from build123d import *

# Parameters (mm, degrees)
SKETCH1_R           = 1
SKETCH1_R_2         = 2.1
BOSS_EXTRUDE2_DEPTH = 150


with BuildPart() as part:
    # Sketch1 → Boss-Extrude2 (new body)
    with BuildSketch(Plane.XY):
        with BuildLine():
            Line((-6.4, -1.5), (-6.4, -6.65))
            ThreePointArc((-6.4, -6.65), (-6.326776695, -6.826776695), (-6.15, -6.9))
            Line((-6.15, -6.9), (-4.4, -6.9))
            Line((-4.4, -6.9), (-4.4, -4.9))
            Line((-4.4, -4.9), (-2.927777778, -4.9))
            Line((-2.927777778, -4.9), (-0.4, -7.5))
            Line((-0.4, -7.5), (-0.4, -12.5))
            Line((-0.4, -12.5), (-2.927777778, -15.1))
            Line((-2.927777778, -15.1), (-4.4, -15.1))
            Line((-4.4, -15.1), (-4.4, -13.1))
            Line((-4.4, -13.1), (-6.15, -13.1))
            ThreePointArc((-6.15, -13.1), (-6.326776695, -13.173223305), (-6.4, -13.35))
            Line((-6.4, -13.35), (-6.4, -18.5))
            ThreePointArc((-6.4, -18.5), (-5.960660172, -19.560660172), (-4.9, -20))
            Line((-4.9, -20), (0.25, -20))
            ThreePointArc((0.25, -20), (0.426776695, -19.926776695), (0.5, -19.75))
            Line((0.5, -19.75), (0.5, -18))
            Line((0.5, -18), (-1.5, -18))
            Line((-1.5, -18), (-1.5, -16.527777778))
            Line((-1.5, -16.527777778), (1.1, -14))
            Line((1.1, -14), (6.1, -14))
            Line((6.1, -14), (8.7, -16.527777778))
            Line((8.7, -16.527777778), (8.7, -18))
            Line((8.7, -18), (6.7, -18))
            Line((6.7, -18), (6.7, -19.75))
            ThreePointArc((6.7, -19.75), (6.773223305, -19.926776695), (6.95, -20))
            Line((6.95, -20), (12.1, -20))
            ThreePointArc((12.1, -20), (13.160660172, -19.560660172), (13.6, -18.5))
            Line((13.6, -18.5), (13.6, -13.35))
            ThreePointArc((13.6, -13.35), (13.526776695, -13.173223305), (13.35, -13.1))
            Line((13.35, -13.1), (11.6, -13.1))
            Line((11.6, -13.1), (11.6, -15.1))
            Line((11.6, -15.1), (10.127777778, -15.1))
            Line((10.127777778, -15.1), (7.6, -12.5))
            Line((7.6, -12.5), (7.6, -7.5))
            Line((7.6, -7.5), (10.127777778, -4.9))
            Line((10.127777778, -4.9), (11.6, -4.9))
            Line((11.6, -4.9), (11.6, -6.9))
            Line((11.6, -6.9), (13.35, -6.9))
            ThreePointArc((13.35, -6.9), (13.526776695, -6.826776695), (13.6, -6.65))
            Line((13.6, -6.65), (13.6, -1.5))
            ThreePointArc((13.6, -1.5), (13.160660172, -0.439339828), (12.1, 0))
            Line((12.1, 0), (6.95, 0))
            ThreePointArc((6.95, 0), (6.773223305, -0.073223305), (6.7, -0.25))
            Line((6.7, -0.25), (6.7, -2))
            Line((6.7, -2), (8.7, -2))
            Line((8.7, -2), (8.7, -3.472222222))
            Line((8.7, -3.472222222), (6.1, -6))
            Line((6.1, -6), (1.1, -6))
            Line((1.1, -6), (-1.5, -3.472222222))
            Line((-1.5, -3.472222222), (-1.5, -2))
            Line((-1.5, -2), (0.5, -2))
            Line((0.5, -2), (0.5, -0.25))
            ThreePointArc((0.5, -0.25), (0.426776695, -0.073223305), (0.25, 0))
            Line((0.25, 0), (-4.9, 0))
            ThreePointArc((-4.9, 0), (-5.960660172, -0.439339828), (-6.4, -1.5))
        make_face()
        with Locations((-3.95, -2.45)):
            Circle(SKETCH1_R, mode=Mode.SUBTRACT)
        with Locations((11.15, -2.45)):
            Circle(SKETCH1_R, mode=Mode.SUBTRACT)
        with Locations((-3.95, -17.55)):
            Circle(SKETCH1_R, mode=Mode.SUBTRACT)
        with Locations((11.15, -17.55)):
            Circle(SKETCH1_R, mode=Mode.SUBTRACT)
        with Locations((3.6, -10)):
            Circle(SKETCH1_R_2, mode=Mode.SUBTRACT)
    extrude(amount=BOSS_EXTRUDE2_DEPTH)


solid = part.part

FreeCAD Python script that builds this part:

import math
import FreeCAD as App
import Part
import Sketcher
from FreeCAD import Vector
Q = App.Units.Quantity

doc = App.newDocument("Part")
body = doc.addObject("PartDesign::Body", "Body")

# Sketch on XY plane
sketch1 = body.newObject("Sketcher::SketchObject", "Sketch")
sketch1.AttachmentSupport = (doc.getObject("XY_Plane"), [""])
sketch1.MapMode = "FlatFace"
sketch1.addGeometry(Part.LineSegment(Vector(-6.4, -1.5, 0), Vector(-6.4, -6.65, 0)), False)
sketch1.addGeometry(Part.ArcOfCircle(Part.Circle(Vector(-6.15, -6.65, 0), Vector(0, 0, 1), 0.25), math.radians(-180), math.radians(-90)), False)
sketch1.addGeometry(Part.LineSegment(Vector(-6.15, -6.9, 0), Vector(-4.4, -6.9, 0)), False)
sketch1.addGeometry(Part.LineSegment(Vector(-4.4, -6.9, 0), Vector(-4.4, -4.9, 0)), False)
sketch1.addGeometry(Part.LineSegment(Vector(-4.4, -4.9, 0), Vector(-2.93, -4.9, 0)), False)
sketch1.addGeometry(Part.LineSegment(Vector(-2.93, -4.9, 0), Vector(-0.4, -7.5, 0)), False)
sketch1.addGeometry(Part.LineSegment(Vector(-0.4, -7.5, 0), Vector(-0.4, -12.5, 0)), False)
sketch1.addGeometry(Part.LineSegment(Vector(-0.4, -12.5, 0), Vector(-2.93, -15.1, 0)), False)
sketch1.addGeometry(Part.LineSegment(Vector(-2.93, -15.1, 0), Vector(-4.4, -15.1, 0)), False)
sketch1.addGeometry(Part.LineSegment(Vector(-4.4, -15.1, 0), Vector(-4.4, -13.1, 0)), False)
sketch1.addGeometry(Part.LineSegment(Vector(-4.4, -13.1, 0), Vector(-6.15, -13.1, 0)), False)
sketch1.addGeometry(Part.ArcOfCircle(Part.Circle(Vector(-6.15, -13.35, 0), Vector(0, 0, 1), 0.25), math.radians(90), math.radians(180)), False)
sketch1.addGeometry(Part.LineSegment(Vector(-6.4, -13.35, 0), Vector(-6.4, -18.5, 0)), False)
sketch1.addGeometry(Part.ArcOfCircle(Part.Circle(Vector(-4.9, -18.5, 0), Vector(0, 0, 1), 1.5), math.radians(180), math.radians(270)), False)
sketch1.addGeometry(Part.LineSegment(Vector(-4.9, -20, 0), Vector(0.25, -20, 0)), False)
sketch1.addGeometry(Part.ArcOfCircle(Part.Circle(Vector(0.25, -19.75, 0), Vector(0, 0, 1), 0.25), math.radians(-90), math.radians(0)), False)
sketch1.addGeometry(Part.LineSegment(Vector(0.5, -19.75, 0), Vector(0.5, -18, 0)), False)
sketch1.addGeometry(Part.LineSegment(Vector(0.5, -18, 0), Vector(-1.5, -18, 0)), False)
sketch1.addGeometry(Part.LineSegment(Vector(-1.5, -18, 0), Vector(-1.5, -16.53, 0)), False)
sketch1.addGeometry(Part.LineSegment(Vector(-1.5, -16.53, 0), Vector(1.1, -14, 0)), False)
sketch1.addGeometry(Part.LineSegment(Vector(1.1, -14, 0), Vector(6.1, -14, 0)), False)
sketch1.addGeometry(Part.LineSegment(Vector(6.1, -14, 0), Vector(8.7, -16.53, 0)), False)
sketch1.addGeometry(Part.LineSegment(Vector(8.7, -16.53, 0), Vector(8.7, -18, 0)), False)
sketch1.addGeometry(Part.LineSegment(Vector(8.7, -18, 0), Vector(6.7, -18, 0)), False)
sketch1.addGeometry(Part.LineSegment(Vector(6.7, -18, 0), Vector(6.7, -19.75, 0)), False)
sketch1.addGeometry(Part.ArcOfCircle(Part.Circle(Vector(6.95, -19.75, 0), Vector(0, 0, 1), 0.25), math.radians(-180), math.radians(-90)), False)
sketch1.addGeometry(Part.LineSegment(Vector(6.95, -20, 0), Vector(12.1, -20, 0)), False)
sketch1.addGeometry(Part.ArcOfCircle(Part.Circle(Vector(12.1, -18.5, 0), Vector(0, 0, 1), 1.5), math.radians(-90), math.radians(0)), False)
sketch1.addGeometry(Part.LineSegment(Vector(13.6, -18.5, 0), Vector(13.6, -13.35, 0)), False)
sketch1.addGeometry(Part.ArcOfCircle(Part.Circle(Vector(13.35, -13.35, 0), Vector(0, 0, 1), 0.25), math.radians(0), math.radians(90)), False)
sketch1.addGeometry(Part.LineSegment(Vector(13.35, -13.1, 0), Vector(11.6, -13.1, 0)), False)
sketch1.addGeometry(Part.LineSegment(Vector(11.6, -13.1, 0), Vector(11.6, -15.1, 0)), False)
sketch1.addGeometry(Part.LineSegment(Vector(11.6, -15.1, 0), Vector(10.13, -15.1, 0)), False)
sketch1.addGeometry(Part.LineSegment(Vector(10.13, -15.1, 0), Vector(7.6, -12.5, 0)), False)
sketch1.addGeometry(Part.LineSegment(Vector(7.6, -12.5, 0), Vector(7.6, -7.5, 0)), False)
sketch1.addGeometry(Part.LineSegment(Vector(7.6, -7.5, 0), Vector(10.13, -4.9, 0)), False)
sketch1.addGeometry(Part.LineSegment(Vector(10.13, -4.9, 0), Vector(11.6, -4.9, 0)), False)
sketch1.addGeometry(Part.LineSegment(Vector(11.6, -4.9, 0), Vector(11.6, -6.9, 0)), False)
sketch1.addGeometry(Part.LineSegment(Vector(11.6, -6.9, 0), Vector(13.35, -6.9, 0)), False)
sketch1.addGeometry(Part.ArcOfCircle(Part.Circle(Vector(13.35, -6.65, 0), Vector(0, 0, 1), 0.25), math.radians(-90), math.radians(0)), False)
sketch1.addGeometry(Part.LineSegment(Vector(13.6, -6.65, 0), Vector(13.6, -1.5, 0)), False)
sketch1.addGeometry(Part.ArcOfCircle(Part.Circle(Vector(12.1, -1.5, 0), Vector(0, 0, 1), 1.5), math.radians(0), math.radians(90)), False)
sketch1.addGeometry(Part.LineSegment(Vector(12.1, 0, 0), Vector(6.95, 0, 0)), False)
sketch1.addGeometry(Part.ArcOfCircle(Part.Circle(Vector(6.95, -0.25, 0), Vector(0, 0, 1), 0.25), math.radians(90), math.radians(180)), False)
sketch1.addGeometry(Part.LineSegment(Vector(6.7, -0.25, 0), Vector(6.7, -2, 0)), False)
sketch1.addGeometry(Part.LineSegment(Vector(6.7, -2, 0), Vector(8.7, -2, 0)), False)
sketch1.addGeometry(Part.LineSegment(Vector(8.7, -2, 0), Vector(8.7, -3.47, 0)), False)
sketch1.addGeometry(Part.LineSegment(Vector(8.7, -3.47, 0), Vector(6.1, -6, 0)), False)
sketch1.addGeometry(Part.LineSegment(Vector(6.1, -6, 0), Vector(1.1, -6, 0)), False)
sketch1.addGeometry(Part.LineSegment(Vector(1.1, -6, 0), Vector(-1.5, -3.47, 0)), False)
sketch1.addGeometry(Part.LineSegment(Vector(-1.5, -3.47, 0), Vector(-1.5, -2, 0)), False)
sketch1.addGeometry(Part.LineSegment(Vector(-1.5, -2, 0), Vector(0.5, -2, 0)), False)
sketch1.addGeometry(Part.LineSegment(Vector(0.5, -2, 0), Vector(0.5, -0.25, 0)), False)
sketch1.addGeometry(Part.ArcOfCircle(Part.Circle(Vector(0.25, -0.25, 0), Vector(0, 0, 1), 0.25), math.radians(0), math.radians(90)), False)
sketch1.addGeometry(Part.LineSegment(Vector(0.25, 0, 0), Vector(-4.9, 0, 0)), False)
sketch1.addGeometry(Part.ArcOfCircle(Part.Circle(Vector(-4.9, -1.5, 0), Vector(0, 0, 1), 1.5), math.radians(90), math.radians(180)), False)
sketch1.addGeometry(Part.Circle(Vector(-3.95, -17.55, 0), Vector(0, 0, 1), 1), False)
sketch1.addGeometry(Part.Circle(Vector(11.15, -17.55, 0), Vector(0, 0, 1), 1), False)
sketch1.addGeometry(Part.Circle(Vector(3.6, -10, 0), Vector(0, 0, 1), 2.1), False)
sketch1.addGeometry(Part.Circle(Vector(-3.95, -2.45, 0), Vector(0, 0, 1), 1), False)
sketch1.addGeometry(Part.Circle(Vector(11.15, -2.45, 0), Vector(0, 0, 1), 1), False)
sketch1.addConstraint(Sketcher.Constraint("Tangent", 0, 2, 1, 1))
sketch1.addConstraint(Sketcher.Constraint("Tangent", 1, 2, 2, 1))
sketch1.addConstraint(Sketcher.Constraint("Coincident", 2, 2, 3, 1))
sketch1.addConstraint(Sketcher.Constraint("Coincident", 3, 2, 4, 1))
sketch1.addConstraint(Sketcher.Constraint("Coincident", 4, 2, 5, 1))
sketch1.addConstraint(Sketcher.Constraint("Coincident", 5, 2, 6, 1))
sketch1.addConstraint(Sketcher.Constraint("Coincident", 6, 2, 7, 1))
sketch1.addConstraint(Sketcher.Constraint("Coincident", 7, 2, 8, 1))
sketch1.addConstraint(Sketcher.Constraint("Coincident", 8, 2, 9, 1))
sketch1.addConstraint(Sketcher.Constraint("Coincident", 9, 2, 10, 1))
sketch1.addConstraint(Sketcher.Constraint("Tangent", 10, 2, 11, 1))
sketch1.addConstraint(Sketcher.Constraint("Tangent", 11, 2, 12, 1))
sketch1.addConstraint(Sketcher.Constraint("Tangent", 12, 2, 13, 1))
sketch1.addConstraint(Sketcher.Constraint("Tangent", 13, 2, 14, 1))
sketch1.addConstraint(Sketcher.Constraint("Tangent", 14, 2, 15, 1))
sketch1.addConstraint(Sketcher.Constraint("Tangent", 15, 2, 16, 1))
sketch1.addConstraint(Sketcher.Constraint("Coincident", 16, 2, 17, 1))
sketch1.addConstraint(Sketcher.Constraint("Coincident", 17, 2, 18, 1))
sketch1.addConstraint(Sketcher.Constraint("Coincident", 18, 2, 19, 1))
sketch1.addConstraint(Sketcher.Constraint("Coincident", 19, 2, 20, 1))
sketch1.addConstraint(Sketcher.Constraint("Coincident", 20, 2, 21, 1))
sketch1.addConstraint(Sketcher.Constraint("Coincident", 21, 2, 22, 1))
sketch1.addConstraint(Sketcher.Constraint("Coincident", 22, 2, 23, 1))
sketch1.addConstraint(Sketcher.Constraint("Coincident", 23, 2, 24, 1))
sketch1.addConstraint(Sketcher.Constraint("Tangent", 24, 2, 25, 1))
sketch1.addConstraint(Sketcher.Constraint("Tangent", 25, 2, 26, 1))
sketch1.addConstraint(Sketcher.Constraint("Tangent", 26, 2, 27, 1))
sketch1.addConstraint(Sketcher.Constraint("Tangent", 27, 2, 28, 1))
sketch1.addConstraint(Sketcher.Constraint("Tangent", 28, 2, 29, 1))
sketch1.addConstraint(Sketcher.Constraint("Tangent", 29, 2, 30, 1))
sketch1.addConstraint(Sketcher.Constraint("Coincident", 30, 2, 31, 1))
sketch1.addConstraint(Sketcher.Constraint("Coincident", 31, 2, 32, 1))
sketch1.addConstraint(Sketcher.Constraint("Coincident", 32, 2, 33, 1))
sketch1.addConstraint(Sketcher.Constraint("Coincident", 33, 2, 34, 1))
sketch1.addConstraint(Sketcher.Constraint("Coincident", 34, 2, 35, 1))
sketch1.addConstraint(Sketcher.Constraint("Coincident", 35, 2, 36, 1))
sketch1.addConstraint(Sketcher.Constraint("Coincident", 36, 2, 37, 1))
sketch1.addConstraint(Sketcher.Constraint("Coincident", 37, 2, 38, 1))
sketch1.addConstraint(Sketcher.Constraint("Tangent", 38, 2, 39, 1))
sketch1.addConstraint(Sketcher.Constraint("Tangent", 39, 2, 40, 1))
sketch1.addConstraint(Sketcher.Constraint("Tangent", 40, 2, 41, 1))
sketch1.addConstraint(Sketcher.Constraint("Tangent", 41, 2, 42, 1))
sketch1.addConstraint(Sketcher.Constraint("Tangent", 42, 2, 43, 1))
sketch1.addConstraint(Sketcher.Constraint("Tangent", 43, 2, 44, 1))
sketch1.addConstraint(Sketcher.Constraint("Coincident", 44, 2, 45, 1))
sketch1.addConstraint(Sketcher.Constraint("Coincident", 45, 2, 46, 1))
sketch1.addConstraint(Sketcher.Constraint("Coincident", 46, 2, 47, 1))
sketch1.addConstraint(Sketcher.Constraint("Coincident", 47, 2, 48, 1))
sketch1.addConstraint(Sketcher.Constraint("Coincident", 48, 2, 49, 1))
sketch1.addConstraint(Sketcher.Constraint("Coincident", 49, 2, 50, 1))
sketch1.addConstraint(Sketcher.Constraint("Coincident", 50, 2, 51, 1))
sketch1.addConstraint(Sketcher.Constraint("Coincident", 51, 2, 52, 1))
sketch1.addConstraint(Sketcher.Constraint("Tangent", 52, 2, 53, 1))
sketch1.addConstraint(Sketcher.Constraint("Tangent", 53, 2, 54, 1))
sketch1.addConstraint(Sketcher.Constraint("Tangent", 54, 2, 55, 1))
sketch1.addConstraint(Sketcher.Constraint("Tangent", 55, 2, 0, 1))
sketch1.addConstraint(Sketcher.Constraint("Vertical", 0))
sketch1.addConstraint(Sketcher.Constraint("Horizontal", 2))
sketch1.addConstraint(Sketcher.Constraint("Vertical", 3))
sketch1.addConstraint(Sketcher.Constraint("Horizontal", 4))
sketch1.addConstraint(Sketcher.Constraint("Vertical", 6))
sketch1.addConstraint(Sketcher.Constraint("Horizontal", 8))
sketch1.addConstraint(Sketcher.Constraint("Vertical", 9))
sketch1.addConstraint(Sketcher.Constraint("Horizontal", 10))
sketch1.addConstraint(Sketcher.Constraint("Vertical", 12))
sketch1.addConstraint(Sketcher.Constraint("Horizontal", 14))
sketch1.addConstraint(Sketcher.Constraint("Vertical", 16))
sketch1.addConstraint(Sketcher.Constraint("Horizontal", 17))
sketch1.addConstraint(Sketcher.Constraint("Vertical", 18))
sketch1.addConstraint(Sketcher.Constraint("Horizontal", 20))
sketch1.addConstraint(Sketcher.Constraint("Vertical", 22))
sketch1.addConstraint(Sketcher.Constraint("Horizontal", 23))
sketch1.addConstraint(Sketcher.Constraint("Vertical", 24))
sketch1.addConstraint(Sketcher.Constraint("Horizontal", 26))
sketch1.addConstraint(Sketcher.Constraint("Vertical", 28))
sketch1.addConstraint(Sketcher.Constraint("Horizontal", 30))
sketch1.addConstraint(Sketcher.Constraint("Vertical", 31))
sketch1.addConstraint(Sketcher.Constraint("Horizontal", 32))
sketch1.addConstraint(Sketcher.Constraint("Vertical", 34))
sketch1.addConstraint(Sketcher.Constraint("Horizontal", 36))
sketch1.addConstraint(Sketcher.Constraint("Vertical", 37))
sketch1.addConstraint(Sketcher.Constraint("Horizontal", 38))
sketch1.addConstraint(Sketcher.Constraint("Vertical", 40))
sketch1.addConstraint(Sketcher.Constraint("Horizontal", 42))
sketch1.addConstraint(Sketcher.Constraint("Vertical", 44))
sketch1.addConstraint(Sketcher.Constraint("Horizontal", 45))
sketch1.addConstraint(Sketcher.Constraint("Vertical", 46))
sketch1.addConstraint(Sketcher.Constraint("Horizontal", 48))
sketch1.addConstraint(Sketcher.Constraint("Vertical", 50))
sketch1.addConstraint(Sketcher.Constraint("Horizontal", 51))
sketch1.addConstraint(Sketcher.Constraint("Vertical", 52))
sketch1.addConstraint(Sketcher.Constraint("Horizontal", 54))
sketch1.addConstraint(Sketcher.Constraint("Equal", 1, 11))
sketch1.addConstraint(Sketcher.Constraint("Equal", 11, 15))
sketch1.addConstraint(Sketcher.Constraint("Equal", 15, 25))
sketch1.addConstraint(Sketcher.Constraint("Equal", 13, 27))
sketch1.addConstraint(Sketcher.Constraint("Equal", 25, 29))
sketch1.addConstraint(Sketcher.Constraint("Equal", 29, 39))
sketch1.addConstraint(Sketcher.Constraint("Equal", 27, 41))
sketch1.addConstraint(Sketcher.Constraint("Equal", 39, 43))
sketch1.addConstraint(Sketcher.Constraint("Equal", 43, 53))
sketch1.addConstraint(Sketcher.Constraint("Equal", 41, 55))
sketch1.addConstraint(Sketcher.Constraint("Equal", 56, 57))
sketch1.addConstraint(Sketcher.Constraint("Equal", 57, 59))
sketch1.addConstraint(Sketcher.Constraint("Equal", 59, 60))
sketch1.addConstraint(Sketcher.Constraint("PointOnObject", 41, 2, -1))
sketch1.addConstraint(Sketcher.Constraint("PointOnObject", 53, 2, -1))
sketch1.addConstraint(Sketcher.Constraint("Perpendicular", 5, 19))
sketch1.addConstraint(Sketcher.Constraint("Perpendicular", 7, 21))
sketch1.addConstraint(Sketcher.Constraint("Perpendicular", 19, 33))
sketch1.addConstraint(Sketcher.Constraint("Perpendicular", 21, 35))
sketch1.addConstraint(Sketcher.Constraint("Perpendicular", 33, 47))
sketch1.addConstraint(Sketcher.Constraint("Perpendicular", 35, 49))
sketch1.addConstraint(Sketcher.Constraint("Horizontal", 15, 3, 25, 3))
sketch1.addConstraint(Sketcher.Constraint("Horizontal", 11, 3, 29, 3))
sketch1.addConstraint(Sketcher.Constraint("Horizontal", 1, 3, 39, 3))
sketch1.addConstraint(Sketcher.Constraint("Horizontal", 56, 3, 57, 3))
sketch1.addConstraint(Sketcher.Constraint("Horizontal", 59, 3, 60, 3))
sketch1.addConstraint(Sketcher.Constraint("Horizontal", 18, 2, 21, 2))
sketch1.addConstraint(Sketcher.Constraint("Horizontal", 17, 2, 22, 2))
sketch1.addConstraint(Sketcher.Constraint("Horizontal", 8, 2, 31, 2))
sketch1.addConstraint(Sketcher.Constraint("Horizontal", 6, 2, 33, 2))
sketch1.addConstraint(Sketcher.Constraint("Horizontal", 5, 2, 34, 2))
sketch1.addConstraint(Sketcher.Constraint("Horizontal", 4, 2, 35, 2))
sketch1.addConstraint(Sketcher.Constraint("Horizontal", 46, 2, 49, 2))
sketch1.addConstraint(Sketcher.Constraint("Horizontal", 45, 2, 50, 2))
sketch1.addConstraint(Sketcher.Constraint("Vertical", 1, 3, 11, 3))
sketch1.addConstraint(Sketcher.Constraint("Vertical", 29, 3, 39, 3))
sketch1.addConstraint(Sketcher.Constraint("Vertical", 25, 3, 43, 3))
sketch1.addConstraint(Sketcher.Constraint("Vertical", 15, 3, 53, 3))
sketch1.addConstraint(Sketcher.Constraint("Vertical", 56, 3, 59, 3))
sketch1.addConstraint(Sketcher.Constraint("Vertical", 57, 3, 60, 3))
sketch1.addConstraint(Sketcher.Constraint("Vertical", 4, 2, 7, 2))
sketch1.addConstraint(Sketcher.Constraint("Vertical", 3, 2, 8, 2))
sketch1.addConstraint(Sketcher.Constraint("Vertical", 32, 2, 35, 2))
sketch1.addConstraint(Sketcher.Constraint("Vertical", 31, 2, 36, 2))
sketch1.addConstraint(Sketcher.Constraint("Vertical", 22, 2, 45, 2))
sketch1.addConstraint(Sketcher.Constraint("Vertical", 20, 2, 47, 2))
sketch1.addConstraint(Sketcher.Constraint("Vertical", 19, 2, 48, 2))
sketch1.addConstraint(Sketcher.Constraint("Equal", 17, 23))
sketch1.addConstraint(Sketcher.Constraint("Equal", 14, 26))
sketch1.addConstraint(Sketcher.Constraint("Equal", 10, 30))
sketch1.addConstraint(Sketcher.Constraint("Equal", 8, 32))
sketch1.addConstraint(Sketcher.Constraint("Equal", 54, 0))
sketch1.addConstraint(Sketcher.Constraint("Equal", 51, 3))
sketch1.addConstraint(Sketcher.Constraint("Equal", 48, 6))
sketch1.addConstraint(Sketcher.Constraint("Equal", 3, 9))
sketch1.addConstraint(Sketcher.Constraint("Equal", 0, 12))
sketch1.addConstraint(Sketcher.Constraint("Equal", 38, 16))
sketch1.addConstraint(Sketcher.Constraint("Equal", 36, 18))
sketch1.addConstraint(Sketcher.Constraint("Equal", 24, 44))
sketch1.addConstraint(Sketcher.Constraint("Equal", 22, 46))
sketch1.addConstraint(Sketcher.Constraint("Equal", 7, 19))
sketch1.addConstraint(Sketcher.Constraint("Diameter", 56, Q("2 mm")))
sketch1.addConstraint(Sketcher.Constraint("Diameter", 58, Q("4.2 mm")))
sketch1.addConstraint(Sketcher.Constraint("Radius", 13, Q("1.5 mm")))
sketch1.addConstraint(Sketcher.Constraint("DistanceX", 17, 2, 17, 1, Q("2 mm")))
sketch1.addConstraint(Sketcher.Constraint("DistanceX", 20, 1, 20, 2, Q("5 mm")))
sketch1.addConstraint(Sketcher.Constraint("Radius", 1, Q("0.25 mm")))
sketch1.addConstraint(Sketcher.Constraint("DistanceY", 58, 3, -1, 1, Q("10 mm")))
sketch1.addConstraint(Sketcher.Constraint("DistanceY", 13, 2, -1, 1, Q("20 mm")))
sketch1.addConstraint(Sketcher.Constraint("DistanceY", 16, 2, -1, 1, Q("18 mm")))
sketch1.addConstraint(Sketcher.Constraint("DistanceY", 19, 2, -1, 1, Q("14 mm")))
sketch1.addConstraint(Sketcher.Constraint("DistanceX", 14, 1, 14, 2, Q("5.15 mm")))
sketch1.addConstraint(Sketcher.Constraint("DistanceX", 13, 3, -1, 1, Q("4.9 mm")))
sketch1.addConstraint(Sketcher.Constraint("DistanceX", -1, 1, 58, 3, Q("3.6 mm")))
sketch1.addConstraint(Sketcher.Constraint("DistanceX", 56, 3, -1, 1, Q("3.95 mm")))
sketch1.addConstraint(Sketcher.Constraint("DistanceY", 56, 3, -1, 1, Q("17.55 mm")))
sketch1.addConstraint(Sketcher.Constraint("DistanceX", -1, 1, 57, 3, Q("11.15 mm")))
sketch1.addConstraint(Sketcher.Constraint("DistanceY", 59, 3, -1, 1, Q("2.45 mm")))
sketch1.addConstraint(Sketcher.Constraint("DistanceX", 4, 1, 4, 2, Q("1.472222 mm")))
pad1 = body.newObject("PartDesign::Pad", "Pad")
pad1.Profile = sketch1
pad1.Length = 150

doc.recompute()
